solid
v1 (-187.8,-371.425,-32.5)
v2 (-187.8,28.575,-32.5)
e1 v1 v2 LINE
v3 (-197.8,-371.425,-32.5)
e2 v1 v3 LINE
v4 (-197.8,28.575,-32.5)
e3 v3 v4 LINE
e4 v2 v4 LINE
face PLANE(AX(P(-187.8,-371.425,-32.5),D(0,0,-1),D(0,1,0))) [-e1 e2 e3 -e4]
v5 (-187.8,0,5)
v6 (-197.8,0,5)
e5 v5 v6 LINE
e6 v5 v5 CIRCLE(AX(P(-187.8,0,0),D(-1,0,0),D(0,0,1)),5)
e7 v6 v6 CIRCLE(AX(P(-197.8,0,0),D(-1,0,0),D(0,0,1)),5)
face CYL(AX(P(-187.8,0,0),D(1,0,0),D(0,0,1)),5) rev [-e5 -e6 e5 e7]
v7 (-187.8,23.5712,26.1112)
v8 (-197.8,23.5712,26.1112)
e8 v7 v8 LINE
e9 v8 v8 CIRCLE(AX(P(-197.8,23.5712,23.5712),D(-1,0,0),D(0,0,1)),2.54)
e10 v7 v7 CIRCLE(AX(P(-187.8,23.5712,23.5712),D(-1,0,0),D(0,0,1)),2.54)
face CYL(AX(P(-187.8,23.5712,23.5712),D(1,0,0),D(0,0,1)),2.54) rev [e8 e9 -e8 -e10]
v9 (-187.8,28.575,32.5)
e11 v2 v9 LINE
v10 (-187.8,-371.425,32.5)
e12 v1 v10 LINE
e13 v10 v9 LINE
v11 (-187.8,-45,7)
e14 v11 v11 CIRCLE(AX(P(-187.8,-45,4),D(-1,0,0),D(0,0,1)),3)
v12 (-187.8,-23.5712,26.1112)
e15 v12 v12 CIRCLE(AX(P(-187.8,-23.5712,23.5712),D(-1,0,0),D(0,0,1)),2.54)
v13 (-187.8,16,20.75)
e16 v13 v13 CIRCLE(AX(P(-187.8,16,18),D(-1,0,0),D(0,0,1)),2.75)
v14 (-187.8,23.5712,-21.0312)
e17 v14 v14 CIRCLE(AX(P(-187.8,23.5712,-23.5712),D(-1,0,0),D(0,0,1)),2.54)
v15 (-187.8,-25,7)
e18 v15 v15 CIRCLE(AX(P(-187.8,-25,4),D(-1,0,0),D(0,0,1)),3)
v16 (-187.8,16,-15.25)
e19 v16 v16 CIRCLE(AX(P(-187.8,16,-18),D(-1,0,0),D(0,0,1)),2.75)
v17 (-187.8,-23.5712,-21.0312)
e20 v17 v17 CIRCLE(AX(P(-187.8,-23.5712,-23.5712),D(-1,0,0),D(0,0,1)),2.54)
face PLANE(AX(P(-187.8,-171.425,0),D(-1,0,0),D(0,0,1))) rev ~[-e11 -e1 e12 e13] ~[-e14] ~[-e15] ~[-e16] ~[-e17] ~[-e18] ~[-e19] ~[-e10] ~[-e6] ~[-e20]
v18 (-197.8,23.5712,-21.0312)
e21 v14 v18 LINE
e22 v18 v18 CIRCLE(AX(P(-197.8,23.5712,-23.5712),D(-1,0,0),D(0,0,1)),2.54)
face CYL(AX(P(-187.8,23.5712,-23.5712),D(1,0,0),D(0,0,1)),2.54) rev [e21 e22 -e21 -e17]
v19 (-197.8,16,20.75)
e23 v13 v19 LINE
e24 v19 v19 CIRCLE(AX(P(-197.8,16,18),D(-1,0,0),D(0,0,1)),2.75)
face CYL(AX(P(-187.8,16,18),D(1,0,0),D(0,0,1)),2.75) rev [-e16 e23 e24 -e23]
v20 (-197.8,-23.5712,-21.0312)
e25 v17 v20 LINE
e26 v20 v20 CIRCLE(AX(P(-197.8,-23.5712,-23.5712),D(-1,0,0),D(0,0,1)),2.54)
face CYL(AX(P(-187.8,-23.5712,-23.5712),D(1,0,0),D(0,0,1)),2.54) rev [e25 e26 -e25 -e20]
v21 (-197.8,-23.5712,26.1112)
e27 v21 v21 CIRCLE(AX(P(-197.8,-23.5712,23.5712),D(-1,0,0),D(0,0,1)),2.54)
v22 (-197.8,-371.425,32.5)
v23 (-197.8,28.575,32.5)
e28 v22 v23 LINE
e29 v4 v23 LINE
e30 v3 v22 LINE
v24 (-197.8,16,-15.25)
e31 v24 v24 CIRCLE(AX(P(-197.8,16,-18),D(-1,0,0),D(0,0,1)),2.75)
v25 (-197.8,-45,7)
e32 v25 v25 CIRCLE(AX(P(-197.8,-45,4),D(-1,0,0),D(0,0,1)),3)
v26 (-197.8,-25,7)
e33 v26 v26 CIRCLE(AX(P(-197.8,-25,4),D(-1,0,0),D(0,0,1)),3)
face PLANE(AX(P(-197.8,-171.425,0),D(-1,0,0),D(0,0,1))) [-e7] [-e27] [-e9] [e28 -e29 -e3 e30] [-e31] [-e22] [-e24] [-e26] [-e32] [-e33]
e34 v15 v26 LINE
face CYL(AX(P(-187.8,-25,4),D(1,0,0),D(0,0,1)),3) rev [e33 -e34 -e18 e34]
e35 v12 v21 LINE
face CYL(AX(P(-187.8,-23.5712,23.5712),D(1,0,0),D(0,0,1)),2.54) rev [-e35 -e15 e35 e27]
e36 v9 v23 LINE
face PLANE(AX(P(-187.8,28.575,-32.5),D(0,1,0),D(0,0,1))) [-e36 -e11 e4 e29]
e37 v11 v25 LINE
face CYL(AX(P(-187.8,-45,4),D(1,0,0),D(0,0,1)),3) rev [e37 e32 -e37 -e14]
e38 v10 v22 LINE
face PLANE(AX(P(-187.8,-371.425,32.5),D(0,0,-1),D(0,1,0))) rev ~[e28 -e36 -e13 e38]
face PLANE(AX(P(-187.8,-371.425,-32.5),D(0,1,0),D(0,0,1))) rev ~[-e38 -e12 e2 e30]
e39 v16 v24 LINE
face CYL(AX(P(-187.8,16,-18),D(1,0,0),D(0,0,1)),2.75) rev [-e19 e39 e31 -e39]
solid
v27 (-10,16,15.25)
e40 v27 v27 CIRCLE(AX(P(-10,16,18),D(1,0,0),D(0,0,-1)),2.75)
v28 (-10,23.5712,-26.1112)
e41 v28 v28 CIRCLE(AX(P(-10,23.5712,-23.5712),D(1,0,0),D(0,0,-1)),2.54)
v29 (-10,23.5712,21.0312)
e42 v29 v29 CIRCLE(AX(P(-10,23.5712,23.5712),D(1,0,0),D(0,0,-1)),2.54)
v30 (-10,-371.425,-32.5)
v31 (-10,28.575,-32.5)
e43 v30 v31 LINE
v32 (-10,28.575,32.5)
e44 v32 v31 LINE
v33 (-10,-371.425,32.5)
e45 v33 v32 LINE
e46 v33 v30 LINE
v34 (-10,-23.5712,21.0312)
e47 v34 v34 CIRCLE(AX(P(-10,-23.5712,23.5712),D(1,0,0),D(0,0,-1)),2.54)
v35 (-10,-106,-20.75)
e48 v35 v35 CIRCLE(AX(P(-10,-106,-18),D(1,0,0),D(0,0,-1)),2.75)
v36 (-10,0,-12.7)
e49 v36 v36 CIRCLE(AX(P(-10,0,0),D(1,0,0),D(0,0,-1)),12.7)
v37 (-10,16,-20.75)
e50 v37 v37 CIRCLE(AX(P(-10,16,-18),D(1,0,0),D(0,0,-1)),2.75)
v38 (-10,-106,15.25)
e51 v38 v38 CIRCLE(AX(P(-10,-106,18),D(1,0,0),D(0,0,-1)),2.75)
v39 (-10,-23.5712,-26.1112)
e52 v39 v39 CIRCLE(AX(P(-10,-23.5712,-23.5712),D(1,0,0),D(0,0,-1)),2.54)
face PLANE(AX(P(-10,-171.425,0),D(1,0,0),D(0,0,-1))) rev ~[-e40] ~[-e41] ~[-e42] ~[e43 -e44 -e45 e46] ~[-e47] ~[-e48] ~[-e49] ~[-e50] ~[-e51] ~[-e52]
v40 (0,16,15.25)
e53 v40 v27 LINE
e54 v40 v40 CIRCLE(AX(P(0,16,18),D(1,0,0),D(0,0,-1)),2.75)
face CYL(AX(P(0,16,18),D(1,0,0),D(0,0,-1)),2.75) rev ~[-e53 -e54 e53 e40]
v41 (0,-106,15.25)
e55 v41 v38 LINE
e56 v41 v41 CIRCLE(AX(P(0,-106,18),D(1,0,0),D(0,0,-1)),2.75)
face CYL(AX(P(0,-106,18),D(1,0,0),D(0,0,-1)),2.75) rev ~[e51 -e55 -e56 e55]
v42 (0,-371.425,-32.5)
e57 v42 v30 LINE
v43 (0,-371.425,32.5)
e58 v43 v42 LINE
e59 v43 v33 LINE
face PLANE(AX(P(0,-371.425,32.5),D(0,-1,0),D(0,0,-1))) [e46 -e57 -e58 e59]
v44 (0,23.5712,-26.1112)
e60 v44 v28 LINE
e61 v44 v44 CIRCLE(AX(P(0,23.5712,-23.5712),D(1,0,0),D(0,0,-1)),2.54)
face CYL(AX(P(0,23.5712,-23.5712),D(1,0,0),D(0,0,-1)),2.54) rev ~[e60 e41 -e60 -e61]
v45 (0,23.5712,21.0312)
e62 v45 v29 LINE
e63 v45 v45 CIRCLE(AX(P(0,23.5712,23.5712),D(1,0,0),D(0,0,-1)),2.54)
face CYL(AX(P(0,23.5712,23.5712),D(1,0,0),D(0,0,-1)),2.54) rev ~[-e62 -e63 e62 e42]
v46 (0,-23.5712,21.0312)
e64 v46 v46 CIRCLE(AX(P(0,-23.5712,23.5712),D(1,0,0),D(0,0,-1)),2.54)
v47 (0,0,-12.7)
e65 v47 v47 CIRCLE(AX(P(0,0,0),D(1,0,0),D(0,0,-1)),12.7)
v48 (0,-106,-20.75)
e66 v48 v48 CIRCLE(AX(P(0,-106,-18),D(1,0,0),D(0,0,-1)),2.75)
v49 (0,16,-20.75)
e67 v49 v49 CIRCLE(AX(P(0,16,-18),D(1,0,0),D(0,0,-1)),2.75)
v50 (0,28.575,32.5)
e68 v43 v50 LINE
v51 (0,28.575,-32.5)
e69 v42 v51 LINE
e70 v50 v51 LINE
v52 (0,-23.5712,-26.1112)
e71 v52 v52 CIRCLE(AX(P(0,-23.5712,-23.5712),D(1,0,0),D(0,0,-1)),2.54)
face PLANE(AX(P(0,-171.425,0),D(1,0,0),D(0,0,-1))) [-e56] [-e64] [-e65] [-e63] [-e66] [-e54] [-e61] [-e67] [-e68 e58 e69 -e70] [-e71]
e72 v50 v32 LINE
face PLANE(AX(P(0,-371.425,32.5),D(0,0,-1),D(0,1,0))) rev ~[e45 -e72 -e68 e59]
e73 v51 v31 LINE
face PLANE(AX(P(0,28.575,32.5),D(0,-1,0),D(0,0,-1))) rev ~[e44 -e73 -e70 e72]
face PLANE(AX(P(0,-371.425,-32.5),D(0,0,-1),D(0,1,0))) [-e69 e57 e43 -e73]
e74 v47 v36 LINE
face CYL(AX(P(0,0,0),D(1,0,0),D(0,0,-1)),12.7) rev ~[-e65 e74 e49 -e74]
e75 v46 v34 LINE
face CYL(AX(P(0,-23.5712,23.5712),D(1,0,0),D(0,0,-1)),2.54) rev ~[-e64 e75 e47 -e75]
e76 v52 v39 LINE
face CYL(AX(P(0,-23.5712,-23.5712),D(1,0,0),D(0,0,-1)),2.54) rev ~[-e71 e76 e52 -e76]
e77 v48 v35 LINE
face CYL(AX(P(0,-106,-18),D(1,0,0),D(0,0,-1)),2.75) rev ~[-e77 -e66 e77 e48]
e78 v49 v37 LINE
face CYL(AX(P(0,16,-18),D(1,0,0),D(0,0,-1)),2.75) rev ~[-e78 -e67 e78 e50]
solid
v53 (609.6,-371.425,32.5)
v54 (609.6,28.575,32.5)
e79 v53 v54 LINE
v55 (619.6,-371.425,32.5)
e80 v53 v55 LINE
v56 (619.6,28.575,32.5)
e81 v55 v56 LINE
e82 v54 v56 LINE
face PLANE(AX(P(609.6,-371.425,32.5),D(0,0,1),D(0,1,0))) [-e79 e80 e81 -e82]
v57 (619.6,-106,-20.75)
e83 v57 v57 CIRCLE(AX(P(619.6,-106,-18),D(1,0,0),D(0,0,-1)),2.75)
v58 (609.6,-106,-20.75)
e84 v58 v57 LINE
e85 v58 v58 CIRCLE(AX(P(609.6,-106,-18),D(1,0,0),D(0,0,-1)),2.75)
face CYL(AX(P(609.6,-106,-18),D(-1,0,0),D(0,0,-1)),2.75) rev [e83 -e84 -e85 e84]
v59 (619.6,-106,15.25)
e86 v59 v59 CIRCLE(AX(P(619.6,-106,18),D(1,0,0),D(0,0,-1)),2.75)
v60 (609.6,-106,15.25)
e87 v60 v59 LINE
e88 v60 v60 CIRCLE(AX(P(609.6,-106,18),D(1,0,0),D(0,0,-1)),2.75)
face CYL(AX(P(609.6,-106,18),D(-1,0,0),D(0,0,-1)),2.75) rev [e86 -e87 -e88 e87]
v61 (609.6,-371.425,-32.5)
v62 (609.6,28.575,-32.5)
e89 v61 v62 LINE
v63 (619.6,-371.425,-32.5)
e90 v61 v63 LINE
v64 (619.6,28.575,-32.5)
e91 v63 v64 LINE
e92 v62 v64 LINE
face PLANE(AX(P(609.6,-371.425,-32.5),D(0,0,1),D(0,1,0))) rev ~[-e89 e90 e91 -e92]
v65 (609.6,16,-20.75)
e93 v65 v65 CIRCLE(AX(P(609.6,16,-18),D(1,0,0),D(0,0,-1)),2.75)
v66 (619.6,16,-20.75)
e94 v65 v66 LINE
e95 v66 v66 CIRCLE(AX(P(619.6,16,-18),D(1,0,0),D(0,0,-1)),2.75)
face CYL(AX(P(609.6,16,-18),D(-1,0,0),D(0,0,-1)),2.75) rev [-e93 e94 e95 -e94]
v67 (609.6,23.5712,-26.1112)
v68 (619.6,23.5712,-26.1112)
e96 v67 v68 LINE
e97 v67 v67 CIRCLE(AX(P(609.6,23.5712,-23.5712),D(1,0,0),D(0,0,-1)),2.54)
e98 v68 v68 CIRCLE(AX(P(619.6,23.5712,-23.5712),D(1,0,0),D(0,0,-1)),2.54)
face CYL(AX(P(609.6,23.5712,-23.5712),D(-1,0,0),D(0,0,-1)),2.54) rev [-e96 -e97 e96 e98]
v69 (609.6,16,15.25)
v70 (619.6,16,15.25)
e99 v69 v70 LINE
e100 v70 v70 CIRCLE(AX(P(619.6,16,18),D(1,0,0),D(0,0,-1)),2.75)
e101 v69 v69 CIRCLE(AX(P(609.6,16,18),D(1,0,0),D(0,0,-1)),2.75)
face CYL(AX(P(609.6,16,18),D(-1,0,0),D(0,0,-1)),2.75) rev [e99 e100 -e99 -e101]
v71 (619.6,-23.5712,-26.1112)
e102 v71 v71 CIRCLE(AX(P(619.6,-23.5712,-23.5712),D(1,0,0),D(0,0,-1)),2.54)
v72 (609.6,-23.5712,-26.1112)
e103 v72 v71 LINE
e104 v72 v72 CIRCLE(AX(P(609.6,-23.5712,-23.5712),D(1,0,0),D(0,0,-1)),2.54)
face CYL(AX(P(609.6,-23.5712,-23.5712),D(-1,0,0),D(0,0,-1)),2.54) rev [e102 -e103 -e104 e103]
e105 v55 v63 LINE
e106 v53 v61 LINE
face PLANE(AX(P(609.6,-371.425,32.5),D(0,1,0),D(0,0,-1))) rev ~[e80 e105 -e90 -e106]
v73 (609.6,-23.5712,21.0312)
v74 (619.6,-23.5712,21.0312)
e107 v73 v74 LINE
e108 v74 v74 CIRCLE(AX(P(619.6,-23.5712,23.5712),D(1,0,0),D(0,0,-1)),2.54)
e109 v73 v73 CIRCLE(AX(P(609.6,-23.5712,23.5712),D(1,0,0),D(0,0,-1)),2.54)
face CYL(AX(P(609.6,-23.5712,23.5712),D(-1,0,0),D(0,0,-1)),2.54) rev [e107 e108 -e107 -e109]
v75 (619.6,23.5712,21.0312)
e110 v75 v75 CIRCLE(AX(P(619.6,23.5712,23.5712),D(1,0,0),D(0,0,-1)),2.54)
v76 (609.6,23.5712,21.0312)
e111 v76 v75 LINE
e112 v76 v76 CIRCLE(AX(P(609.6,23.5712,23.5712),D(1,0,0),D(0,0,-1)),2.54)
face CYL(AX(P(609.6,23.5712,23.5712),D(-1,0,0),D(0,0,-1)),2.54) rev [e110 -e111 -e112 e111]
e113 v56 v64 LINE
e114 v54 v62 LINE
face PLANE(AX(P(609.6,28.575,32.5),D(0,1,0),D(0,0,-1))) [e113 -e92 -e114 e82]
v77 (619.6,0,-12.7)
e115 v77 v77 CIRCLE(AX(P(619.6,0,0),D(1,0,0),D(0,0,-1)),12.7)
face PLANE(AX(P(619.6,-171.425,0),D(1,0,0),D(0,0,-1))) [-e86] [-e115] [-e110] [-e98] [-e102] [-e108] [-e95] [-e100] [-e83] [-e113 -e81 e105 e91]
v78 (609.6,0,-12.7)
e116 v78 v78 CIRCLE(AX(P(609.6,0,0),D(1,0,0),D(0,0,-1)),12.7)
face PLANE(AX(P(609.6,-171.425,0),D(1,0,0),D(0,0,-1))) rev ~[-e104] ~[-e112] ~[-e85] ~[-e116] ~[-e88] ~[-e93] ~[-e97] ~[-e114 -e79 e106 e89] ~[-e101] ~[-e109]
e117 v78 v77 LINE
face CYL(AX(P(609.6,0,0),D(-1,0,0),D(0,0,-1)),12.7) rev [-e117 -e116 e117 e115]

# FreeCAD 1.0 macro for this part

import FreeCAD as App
import Part
import Sketcher
Q = App.Units.Quantity


def add_polygon(sketch, points):
    """Adds a closed chain of lines whose ends are joined by coincident constraints."""
    first, n = sketch.GeometryCount, len(points)
    for a, b in zip(points, points[1:] + points[:1]):
        sketch.addGeometry(Part.LineSegment(App.Vector(*a, 0), App.Vector(*b, 0)), False)
    for i in range(n):
        sketch.addConstraint(Sketcher.Constraint("Coincident", first + i, 2, first + (i + 1) % n, 1))

doc = App.newDocument("Part")
body = doc.addObject("PartDesign::Body", "Body")

# Sketch on YZ plane
sketch1 = doc.addObject("Sketcher::SketchObject", "Sketch")
body.addObject(sketch1)
sketch1.AttachmentSupport = (doc.YZ_Plane, [""])
sketch1.MapMode = "FlatFace"
add_polygon(sketch1, [(28.575, 32.5), (-371.425, 32.5), (-371.425, -32.5), (28.575, -32.5)])  # lines 0-3
sketch1.addGeometry(Part.Circle(App.Vector(-106, 18, 0), App.Vector(0, 0, 1), 2.75), False)  # 4
sketch1.addGeometry(Part.Circle(App.Vector(-106, -18, 0), App.Vector(0, 0, 1), 2.75), False)  # 5
sketch1.addGeometry(Part.Circle(App.Vector(-23.5712, 23.5712, 0), App.Vector(0, 0, 1), 2.54), False)  # 6
sketch1.addGeometry(Part.Circle(App.Vector(23.5712, 23.5712, 0), App.Vector(0, 0, 1), 2.54), False)  # 7
sketch1.addGeometry(Part.Circle(App.Vector(16, 18, 0), App.Vector(0, 0, 1), 2.75), False)  # 8
sketch1.addGeometry(Part.Circle(App.Vector(0, 0, 0), App.Vector(0, 0, 1), 12.7), False)  # 9
sketch1.addGeometry(Part.Circle(App.Vector(-23.5712, -23.5712, 0), App.Vector(0, 0, 1), 2.54), False)  # 10
sketch1.addGeometry(Part.Circle(App.Vector(16, -18, 0), App.Vector(0, 0, 1), 2.75), False)  # 11
sketch1.addGeometry(Part.Circle(App.Vector(23.5712, -23.5712, 0), App.Vector(0, 0, 1), 2.54), False)  # 12
sketch1.addConstraint(Sketcher.Constraint("Horizontal", 0))
sketch1.addConstraint(Sketcher.Constraint("Vertical", 1))
sketch1.addConstraint(Sketcher.Constraint("Horizontal", 2))
sketch1.addConstraint(Sketcher.Constraint("Vertical", 3))
sketch1.addConstraint(Sketcher.Constraint("Coincident", 9, 3, -1, 1))
sketch1.addConstraint(Sketcher.Constraint("Equal", 4, 5))
sketch1.addConstraint(Sketcher.Constraint("Equal", 6, 7))
sketch1.addConstraint(Sketcher.Constraint("Equal", 5, 8))
sketch1.addConstraint(Sketcher.Constraint("Equal", 7, 10))
sketch1.addConstraint(Sketcher.Constraint("Equal", 8, 11))
sketch1.addConstraint(Sketcher.Constraint("Equal", 10, 12))
sketch1.addConstraint(Sketcher.Constraint("Symmetric", 7, 3, 10, 3, -1, 1))
sketch1.addConstraint(Sketcher.Constraint("Symmetric", 6, 3, 12, 3, -1, 1))
sketch1.addConstraint(Sketcher.Constraint("Symmetric", 6, 3, 7, 3, -2))
sketch1.addConstraint(Sketcher.Constraint("Symmetric", 4, 3, 5, 3, -1))
sketch1.addConstraint(Sketcher.Constraint("Symmetric", 8, 3, 11, 3, -1))
sketch1.addConstraint(Sketcher.Constraint("Horizontal", 4, 3, 8, 3))
sketch1.addConstraint(Sketcher.Constraint("Diameter", 4, Q("5.5 mm")))
sketch1.addConstraint(Sketcher.Constraint("Diameter", 9, Q("25.4 mm")))
sketch1.addConstraint(Sketcher.Constraint("Diameter", 6, Q("5.08 mm")))
sketch1.addConstraint(Sketcher.Constraint("DistanceX", 0, 2, 0, 1, Q("400 mm")))
sketch1.addConstraint(Sketcher.Constraint("DistanceY", 1, 2, 1, 1, Q("65 mm")))
sketch1.addConstraint(Sketcher.Constraint("DistanceX", 4, 3, -1, 1, Q("106 mm")))
sketch1.addConstraint(Sketcher.Constraint("DistanceY", -1, 1, 4, 3, Q("18 mm")))
sketch1.addConstraint(Sketcher.Constraint("DistanceX", -1, 1, 8, 3, Q("16 mm")))
sketch1.addConstraint(Sketcher.Constraint("DistanceY", -1, 1, 0, 2, Q("32.5 mm")))
sketch1.addConstraint(Sketcher.Constraint("DistanceX", 0, 2, -1, 1, Q("371.425 mm")))
sketch1.addConstraint(Sketcher.Constraint("DistanceX", 6, 3, -1, 1, Q("23.5712 mm")))
sketch1.addConstraint(Sketcher.Constraint("DistanceY", -1, 1, 6, 3, Q("23.5712 mm")))
pad1 = doc.addObject("PartDesign::Pad", "Pad")
body.addObject(pad1)
pad1.Profile = sketch1
pad1.Length = 10
pad1.Reversed = True
body2 = doc.addObject("PartDesign::Body", "Body001")

# Sketch on YZ plane
sketch2 = doc.addObject("Sketcher::SketchObject", "Sketch001")
body2.addObject(sketch2)
sketch2.AttachmentSupport = (doc.getObject("YZ_Plane001"), [""])
sketch2.MapMode = "FlatFace"
sketch2.AttachmentOffset = App.Placement(App.Vector(0, 0, -187.8), App.Rotation())
add_polygon(sketch2, [(28.575, -32.5), (-371.425, -32.5), (-371.425, 32.5), (28.575, 32.5)])  # lines 0-3
sketch2.addGeometry(Part.Circle(App.Vector(-23.5712, -23.5712, 0), App.Vector(0, 0, 1), 2.54), False)  # 4
sketch2.addGeometry(Part.Circle(App.Vector(-45, 4, 0), App.Vector(0, 0, 1), 3), False)  # 5
sketch2.addGeometry(Part.Circle(App.Vector(-25, 4, 0), App.Vector(0, 0, 1), 3), False)  # 6
sketch2.addGeometry(Part.Circle(App.Vector(-23.5712, 23.5712, 0), App.Vector(0, 0, 1), 2.54), False)  # 7
sketch2.addGeometry(Part.Circle(App.Vector(0, 0, 0), App.Vector(0, 0, 1), 5), False)  # 8
sketch2.addGeometry(Part.Circle(App.Vector(16, -18, 0), App.Vector(0, 0, 1), 2.75), False)  # 9
sketch2.addGeometry(Part.Circle(App.Vector(23.5712, -23.5712, 0), App.Vector(0, 0, 1), 2.54), False)  # 10
sketch2.addGeometry(Part.Circle(App.Vector(16, 18, 0), App.Vector(0, 0, 1), 2.75), False)  # 11
sketch2.addGeometry(Part.Circle(App.Vector(23.5712, 23.5712, 0), App.Vector(0, 0, 1), 2.54), False)  # 12
sketch2.addConstraint(Sketcher.Constraint("Horizontal", 0))
sketch2.addConstraint(Sketcher.Constraint("Vertical", 1))
sketch2.addConstraint(Sketcher.Constraint("Horizontal", 2))
sketch2.addConstraint(Sketcher.Constraint("Vertical", 3))
sketch2.addConstraint(Sketcher.Constraint("Coincident", 8, 3, -1, 1))
sketch2.addConstraint(Sketcher.Constraint("Equal", 5, 6))
sketch2.addConstraint(Sketcher.Constraint("Equal", 4, 7))
sketch2.addConstraint(Sketcher.Constraint("Equal", 7, 10))
sketch2.addConstraint(Sketcher.Constraint("Equal", 9, 11))
sketch2.addConstraint(Sketcher.Constraint("Equal", 10, 12))
sketch2.addConstraint(Sketcher.Constraint("Symmetric", 7, 3, 10, 3, -1, 1))
sketch2.addConstraint(Sketcher.Constraint("Symmetric", 4, 3, 12, 3, -1, 1))
sketch2.addConstraint(Sketcher.Constraint("Symmetric", 4, 3, 10, 3, -2))
sketch2.addConstraint(Sketcher.Constraint("Symmetric", 9, 3, 11, 3, -1))
sketch2.addConstraint(Sketcher.Constraint("Horizontal", 5, 3, 6, 3))
sketch2.addConstraint(Sketcher.Constraint("Diameter", 5, Q("6 mm")))
sketch2.addConstraint(Sketcher.Constraint("Diameter", 8, Q("10 mm")))
sketch2.addConstraint(Sketcher.Constraint("Diameter", 9, Q("5.5 mm")))
sketch2.addConstraint(Sketcher.Constraint("Diameter", 4, Q("5.08 mm")))
sketch2.addConstraint(Sketcher.Constraint("DistanceX", 0, 2, 0, 1, Q("400 mm")))
sketch2.addConstraint(Sketcher.Constraint("DistanceY", 1, 1, 1, 2, Q("65 mm")))
sketch2.addConstraint(Sketcher.Constraint("DistanceX", 5, 3, -1, 1, Q("45 mm")))
sketch2.addConstraint(Sketcher.Constraint("DistanceY", -1, 1, 5, 3, Q("4 mm")))
sketch2.addConstraint(Sketcher.Constraint("DistanceX", 6, 3, -1, 1, Q("25 mm")))
sketch2.addConstraint(Sketcher.Constraint("DistanceX", -1, 1, 9, 3, Q("16 mm")))
sketch2.addConstraint(Sketcher.Constraint("DistanceY", 9, 3, -1, 1, Q("18 mm")))
sketch2.addConstraint(Sketcher.Constraint("DistanceY", 0, 2, -1, 1, Q("32.5 mm")))
sketch2.addConstraint(Sketcher.Constraint("DistanceX", 0, 2, -1, 1, Q("371.425 mm")))
sketch2.addConstraint(Sketcher.Constraint("DistanceX", 4, 3, -1, 1, Q("23.5712 mm")))
sketch2.addConstraint(Sketcher.Constraint("DistanceY", 4, 3, -1, 1, Q("23.5712 mm")))
pad2 = doc.addObject("PartDesign::Pad", "Pad001")
body2.addObject(pad2)
pad2.Profile = sketch2
pad2.Length = 10
pad2.Reversed = True
body3 = doc.addObject("PartDesign::Body", "Body002")

# Sketch on YZ plane
sketch3 = doc.addObject("Sketcher::SketchObject", "Sketch002")
body3.addObject(sketch3)
sketch3.AttachmentSupport = (doc.getObject("YZ_Plane002"), [""])
sketch3.MapMode = "FlatFace"
sketch3.AttachmentOffset = App.Placement(App.Vector(0, 0, 609.6), App.Rotation())
add_polygon(sketch3, [(28.575, 32.5), (-371.425, 32.5), (-371.425, -32.5), (28.575, -32.5)])  # lines 0-3
sketch3.addGeometry(Part.Circle(App.Vector(-106, 18, 0), App.Vector(0, 0, 1), 2.75), False)  # 4
sketch3.addGeometry(Part.Circle(App.Vector(-106, -18, 0), App.Vector(0, 0, 1), 2.75), False)  # 5
sketch3.addGeometry(Part.Circle(App.Vector(-23.5712, 23.5712, 0), App.Vector(0, 0, 1), 2.54), False)  # 6
sketch3.addGeometry(Part.Circle(App.Vector(23.5712, 23.5712, 0), App.Vector(0, 0, 1), 2.54), False)  # 7
sketch3.addGeometry(Part.Circle(App.Vector(16, 18, 0), App.Vector(0, 0, 1), 2.75), False)  # 8
sketch3.addGeometry(Part.Circle(App.Vector(0, 0, 0), App.Vector(0, 0, 1), 12.7), False)  # 9
sketch3.addGeometry(Part.Circle(App.Vector(-23.5712, -23.5712, 0), App.Vector(0, 0, 1), 2.54), False)  # 10
sketch3.addGeometry(Part.Circle(App.Vector(16, -18, 0), App.Vector(0, 0, 1), 2.75), False)  # 11
sketch3.addGeometry(Part.Circle(App.Vector(23.5712, -23.5712, 0), App.Vector(0, 0, 1), 2.54), False)  # 12
sketch3.addConstraint(Sketcher.Constraint("Horizontal", 0))
sketch3.addConstraint(Sketcher.Constraint("Vertical", 1))
sketch3.addConstraint(Sketcher.Constraint("Horizontal", 2))
sketch3.addConstraint(Sketcher.Constraint("Vertical", 3))
sketch3.addConstraint(Sketcher.Constraint("Coincident", 9, 3, -1, 1))
sketch3.addConstraint(Sketcher.Constraint("Equal", 4, 5))
sketch3.addConstraint(Sketcher.Constraint("Equal", 6, 7))
sketch3.addConstraint(Sketcher.Constraint("Equal", 5, 8))
sketch3.addConstraint(Sketcher.Constraint("Equal", 7, 10))
sketch3.addConstraint(Sketcher.Constraint("Equal", 8, 11))
sketch3.addConstraint(Sketcher.Constraint("Equal", 10, 12))
sketch3.addConstraint(Sketcher.Constraint("Symmetric", 7, 3, 10, 3, -1, 1))
sketch3.addConstraint(Sketcher.Constraint("Symmetric", 6, 3, 12, 3, -1, 1))
sketch3.addConstraint(Sketcher.Constraint("Symmetric", 6, 3, 7, 3, -2))
sketch3.addConstraint(Sketcher.Constraint("Symmetric", 4, 3, 5, 3, -1))
sketch3.addConstraint(Sketcher.Constraint("Symmetric", 8, 3, 11, 3, -1))
sketch3.addConstraint(Sketcher.Constraint("Horizontal", 4, 3, 8, 3))
sketch3.addConstraint(Sketcher.Constraint("Diameter", 4, Q("5.5 mm")))
sketch3.addConstraint(Sketcher.Constraint("Diameter", 9, Q("25.4 mm")))
sketch3.addConstraint(Sketcher.Constraint("Diameter", 6, Q("5.08 mm")))
sketch3.addConstraint(Sketcher.Constraint("DistanceX", 0, 2, 0, 1, Q("400 mm")))
sketch3.addConstraint(Sketcher.Constraint("DistanceY", 1, 2, 1, 1, Q("65 mm")))
sketch3.addConstraint(Sketcher.Constraint("DistanceX", 4, 3, -1, 1, Q("106 mm")))
sketch3.addConstraint(Sketcher.Constraint("DistanceY", -1, 1, 4, 3, Q("18 mm")))
sketch3.addConstraint(Sketcher.Constraint("DistanceX", -1, 1, 8, 3, Q("16 mm")))
sketch3.addConstraint(Sketcher.Constraint("DistanceY", -1, 1, 0, 2, Q("32.5 mm")))
sketch3.addConstraint(Sketcher.Constraint("DistanceX", 0, 2, -1, 1, Q("371.425 mm")))
sketch3.addConstraint(Sketcher.Constraint("DistanceX", 6, 3, -1, 1, Q("23.5712 mm")))
sketch3.addConstraint(Sketcher.Constraint("DistanceY", -1, 1, 6, 3, Q("23.5712 mm")))
pad3 = doc.addObject("PartDesign::Pad", "Pad002")
body3.addObject(pad3)
pad3.Profile = sketch3
pad3.Length = 10

doc.recompute()
